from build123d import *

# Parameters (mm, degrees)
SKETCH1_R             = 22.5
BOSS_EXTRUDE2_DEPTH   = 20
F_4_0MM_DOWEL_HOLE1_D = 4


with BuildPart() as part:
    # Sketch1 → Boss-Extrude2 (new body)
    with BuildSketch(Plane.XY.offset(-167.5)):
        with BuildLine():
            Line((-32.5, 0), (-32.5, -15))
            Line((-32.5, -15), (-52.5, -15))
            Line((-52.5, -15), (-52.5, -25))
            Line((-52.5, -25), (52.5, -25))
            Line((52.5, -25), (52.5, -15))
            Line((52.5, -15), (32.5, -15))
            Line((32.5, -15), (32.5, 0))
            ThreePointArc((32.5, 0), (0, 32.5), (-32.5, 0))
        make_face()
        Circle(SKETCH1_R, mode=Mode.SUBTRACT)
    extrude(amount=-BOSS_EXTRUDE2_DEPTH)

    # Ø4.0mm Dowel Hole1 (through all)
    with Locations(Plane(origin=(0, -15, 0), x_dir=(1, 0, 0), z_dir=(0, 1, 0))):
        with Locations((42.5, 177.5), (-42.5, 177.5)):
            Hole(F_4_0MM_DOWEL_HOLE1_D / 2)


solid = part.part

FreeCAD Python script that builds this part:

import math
import FreeCAD as App
import Part
import Sketcher

V = App.Vector

doc = App.newDocument("Part")
params = doc.addObject("Spreadsheet::Sheet", "Params")
for row, (alias, value) in enumerate([
    ("sketch1_diameter", "45 mm"),
    ("sketch1_radius", "32.5 mm"),
    ("sketch1_width", "20 mm"),
    ("sketch1_height", "15 mm"),
    ("sketch1_height2", "10 mm"),
    ("pad1_length", "20 mm"),
    ("sketch2_diameter", "4 mm"),
    ("hole_diameter", "4 mm"),
], start=1):
    params.set(f"A{row}", alias)
    params.set(f"B{row}", "=" + value)
    params.setAlias(f"B{row}", alias)

body = doc.addObject("PartDesign::Body", "Body")

# Sketch on XY plane
sketch1 = doc.addObject("Sketcher::SketchObject", "Sketch")
body.addObject(sketch1)
sketch1.AttachmentSupport = (doc.XY_Plane, [""])
sketch1.MapMode = "FlatFace"
sketch1.AttachmentOffset = App.Placement(V(0, 0, -167.5), App.Rotation())
sketch1.addGeometry(Part.LineSegment(V(-32, 0, 0), V(-32, -15, 0)), False)
sketch1.addGeometry(Part.LineSegment(V(-32, -15, 0), V(-52, -15, 0)), False)
sketch1.addGeometry(Part.LineSegment(V(-52, -15, 0), V(-52, -25, 0)), False)
sketch1.addGeometry(Part.LineSegment(V(-52, -25, 0), V(52, -25, 0)), False)
sketch1.addGeometry(Part.LineSegment(V(52, -25, 0), V(52, -15, 0)), False)
sketch1.addGeometry(Part.LineSegment(V(52, -15, 0), V(32, -15, 0)), False)
sketch1.addGeometry(Part.LineSegment(V(32, -15, 0), V(32, 0, 0)), False)
sketch1.addGeometry(Part.ArcOfCircle(Part.Circle(V(0, 0, 0), V(0, 0, 1), 32), math.radians(0), math.radians(180)), False)
sketch1.addGeometry(Part.Circle(V(0, 0, 0), V(0, 0, 1), 22), False)
sketch1.addConstraint(Sketcher.Constraint("Coincident", 0, 2, 1, 1))
sketch1.addConstraint(Sketcher.Constraint("Coincident", 1, 2, 2, 1))
sketch1.addConstraint(Sketcher.Constraint("Coincident", 2, 2, 3, 1))
sketch1.addConstraint(Sketcher.Constraint("Coincident", 3, 2, 4, 1))
sketch1.addConstraint(Sketcher.Constraint("Coincident", 4, 2, 5, 1))
sketch1.addConstraint(Sketcher.Constraint("Coincident", 5, 2, 6, 1))
sketch1.addConstraint(Sketcher.Constraint("Tangent", 6, 2, 7, 1))
sketch1.addConstraint(Sketcher.Constraint("Tangent", 7, 2, 0, 1))
sketch1.addConstraint(Sketcher.Constraint("Vertical", 0))
sketch1.addConstraint(Sketcher.Constraint("Horizontal", 1))
sketch1.addConstraint(Sketcher.Constraint("Vertical", 2))
sketch1.addConstraint(Sketcher.Constraint("Horizontal", 3))
sketch1.addConstraint(Sketcher.Constraint("Vertical", 4))
sketch1.addConstraint(Sketcher.Constraint("Horizontal", 5))
sketch1.addConstraint(Sketcher.Constraint("Vertical", 6))
sketch1.addConstraint(Sketcher.Constraint("Coincident", 7, 3, -1, 1))
sketch1.addConstraint(Sketcher.Constraint("Coincident", 8, 3, -1, 1))
sketch1.addConstraint(Sketcher.Constraint("Symmetric", 1, 2, 4, 2, -2))
sketch1.addConstraint(Sketcher.Constraint("Diameter", 8, 45.0))
sketch1.addConstraint(Sketcher.Constraint("Radius", 7, 32.5))
sketch1.addConstraint(Sketcher.Constraint("DistanceX", 1, 2, 1, 1, 20.0))
sketch1.addConstraint(Sketcher.Constraint("DistanceY", 0, 2, 0, 1, 15.0))
sketch1.addConstraint(Sketcher.Constraint("DistanceY", 2, 2, 2, 1, 10.0))
sketch1.setExpression("Constraints[18]", "Params.sketch1_diameter")
sketch1.setExpression("Constraints[19]", "Params.sketch1_radius")
sketch1.setExpression("Constraints[20]", "Params.sketch1_width")
sketch1.setExpression("Constraints[21]", "Params.sketch1_height")
sketch1.setExpression("Constraints[22]", "Params.sketch1_height2")
pad1 = doc.addObject("PartDesign::Pad", "Pad")
body.addObject(pad1)
pad1.Profile = sketch1
pad1.setExpression("Length", "Params.pad1_length")
pad1.Reversed = True

# Sketch on XZ plane
sketch2 = doc.addObject("Sketcher::SketchObject", "Sketch001")
body.addObject(sketch2)
sketch2.AttachmentSupport = (doc.XZ_Plane, [""])
sketch2.MapMode = "FlatFace"
sketch2.AttachmentOffset = App.Placement(V(0, 0, 15), App.Rotation())
sketch2.addGeometry(Part.Circle(V(42.5, -177.5, 0), V(0, 0, 1), 2), False)
sketch2.addGeometry(Part.Circle(V(-42.5, -177.5, 0), V(0, 0, 1), 2), False)
sketch2.addConstraint(Sketcher.Constraint("Equal", 0, 1))
sketch2.addConstraint(Sketcher.Constraint("Symmetric", 0, 3, 1, 3, -2))
sketch2.addConstraint(Sketcher.Constraint("Diameter", 0, 4.0))
sketch2.addConstraint(Sketcher.Constraint("DistanceX", 1, 3, 0, 3, 85.0))
sketch2.addConstraint(Sketcher.Constraint("DistanceY", 0, 3, -1, 1, 177.5))
sketch2.setExpression("Constraints[2]", "Params.sketch2_diameter")
doc.recompute()
hole = doc.addObject("PartDesign::Hole", "Hole")
body.addObject(hole)
hole.Profile = sketch2
hole.ThreadType = "None"
hole.setExpression("Diameter", "Params.hole_diameter")
hole.DepthType = "ThroughAll"
hole.Reversed = True

doc.recompute()
